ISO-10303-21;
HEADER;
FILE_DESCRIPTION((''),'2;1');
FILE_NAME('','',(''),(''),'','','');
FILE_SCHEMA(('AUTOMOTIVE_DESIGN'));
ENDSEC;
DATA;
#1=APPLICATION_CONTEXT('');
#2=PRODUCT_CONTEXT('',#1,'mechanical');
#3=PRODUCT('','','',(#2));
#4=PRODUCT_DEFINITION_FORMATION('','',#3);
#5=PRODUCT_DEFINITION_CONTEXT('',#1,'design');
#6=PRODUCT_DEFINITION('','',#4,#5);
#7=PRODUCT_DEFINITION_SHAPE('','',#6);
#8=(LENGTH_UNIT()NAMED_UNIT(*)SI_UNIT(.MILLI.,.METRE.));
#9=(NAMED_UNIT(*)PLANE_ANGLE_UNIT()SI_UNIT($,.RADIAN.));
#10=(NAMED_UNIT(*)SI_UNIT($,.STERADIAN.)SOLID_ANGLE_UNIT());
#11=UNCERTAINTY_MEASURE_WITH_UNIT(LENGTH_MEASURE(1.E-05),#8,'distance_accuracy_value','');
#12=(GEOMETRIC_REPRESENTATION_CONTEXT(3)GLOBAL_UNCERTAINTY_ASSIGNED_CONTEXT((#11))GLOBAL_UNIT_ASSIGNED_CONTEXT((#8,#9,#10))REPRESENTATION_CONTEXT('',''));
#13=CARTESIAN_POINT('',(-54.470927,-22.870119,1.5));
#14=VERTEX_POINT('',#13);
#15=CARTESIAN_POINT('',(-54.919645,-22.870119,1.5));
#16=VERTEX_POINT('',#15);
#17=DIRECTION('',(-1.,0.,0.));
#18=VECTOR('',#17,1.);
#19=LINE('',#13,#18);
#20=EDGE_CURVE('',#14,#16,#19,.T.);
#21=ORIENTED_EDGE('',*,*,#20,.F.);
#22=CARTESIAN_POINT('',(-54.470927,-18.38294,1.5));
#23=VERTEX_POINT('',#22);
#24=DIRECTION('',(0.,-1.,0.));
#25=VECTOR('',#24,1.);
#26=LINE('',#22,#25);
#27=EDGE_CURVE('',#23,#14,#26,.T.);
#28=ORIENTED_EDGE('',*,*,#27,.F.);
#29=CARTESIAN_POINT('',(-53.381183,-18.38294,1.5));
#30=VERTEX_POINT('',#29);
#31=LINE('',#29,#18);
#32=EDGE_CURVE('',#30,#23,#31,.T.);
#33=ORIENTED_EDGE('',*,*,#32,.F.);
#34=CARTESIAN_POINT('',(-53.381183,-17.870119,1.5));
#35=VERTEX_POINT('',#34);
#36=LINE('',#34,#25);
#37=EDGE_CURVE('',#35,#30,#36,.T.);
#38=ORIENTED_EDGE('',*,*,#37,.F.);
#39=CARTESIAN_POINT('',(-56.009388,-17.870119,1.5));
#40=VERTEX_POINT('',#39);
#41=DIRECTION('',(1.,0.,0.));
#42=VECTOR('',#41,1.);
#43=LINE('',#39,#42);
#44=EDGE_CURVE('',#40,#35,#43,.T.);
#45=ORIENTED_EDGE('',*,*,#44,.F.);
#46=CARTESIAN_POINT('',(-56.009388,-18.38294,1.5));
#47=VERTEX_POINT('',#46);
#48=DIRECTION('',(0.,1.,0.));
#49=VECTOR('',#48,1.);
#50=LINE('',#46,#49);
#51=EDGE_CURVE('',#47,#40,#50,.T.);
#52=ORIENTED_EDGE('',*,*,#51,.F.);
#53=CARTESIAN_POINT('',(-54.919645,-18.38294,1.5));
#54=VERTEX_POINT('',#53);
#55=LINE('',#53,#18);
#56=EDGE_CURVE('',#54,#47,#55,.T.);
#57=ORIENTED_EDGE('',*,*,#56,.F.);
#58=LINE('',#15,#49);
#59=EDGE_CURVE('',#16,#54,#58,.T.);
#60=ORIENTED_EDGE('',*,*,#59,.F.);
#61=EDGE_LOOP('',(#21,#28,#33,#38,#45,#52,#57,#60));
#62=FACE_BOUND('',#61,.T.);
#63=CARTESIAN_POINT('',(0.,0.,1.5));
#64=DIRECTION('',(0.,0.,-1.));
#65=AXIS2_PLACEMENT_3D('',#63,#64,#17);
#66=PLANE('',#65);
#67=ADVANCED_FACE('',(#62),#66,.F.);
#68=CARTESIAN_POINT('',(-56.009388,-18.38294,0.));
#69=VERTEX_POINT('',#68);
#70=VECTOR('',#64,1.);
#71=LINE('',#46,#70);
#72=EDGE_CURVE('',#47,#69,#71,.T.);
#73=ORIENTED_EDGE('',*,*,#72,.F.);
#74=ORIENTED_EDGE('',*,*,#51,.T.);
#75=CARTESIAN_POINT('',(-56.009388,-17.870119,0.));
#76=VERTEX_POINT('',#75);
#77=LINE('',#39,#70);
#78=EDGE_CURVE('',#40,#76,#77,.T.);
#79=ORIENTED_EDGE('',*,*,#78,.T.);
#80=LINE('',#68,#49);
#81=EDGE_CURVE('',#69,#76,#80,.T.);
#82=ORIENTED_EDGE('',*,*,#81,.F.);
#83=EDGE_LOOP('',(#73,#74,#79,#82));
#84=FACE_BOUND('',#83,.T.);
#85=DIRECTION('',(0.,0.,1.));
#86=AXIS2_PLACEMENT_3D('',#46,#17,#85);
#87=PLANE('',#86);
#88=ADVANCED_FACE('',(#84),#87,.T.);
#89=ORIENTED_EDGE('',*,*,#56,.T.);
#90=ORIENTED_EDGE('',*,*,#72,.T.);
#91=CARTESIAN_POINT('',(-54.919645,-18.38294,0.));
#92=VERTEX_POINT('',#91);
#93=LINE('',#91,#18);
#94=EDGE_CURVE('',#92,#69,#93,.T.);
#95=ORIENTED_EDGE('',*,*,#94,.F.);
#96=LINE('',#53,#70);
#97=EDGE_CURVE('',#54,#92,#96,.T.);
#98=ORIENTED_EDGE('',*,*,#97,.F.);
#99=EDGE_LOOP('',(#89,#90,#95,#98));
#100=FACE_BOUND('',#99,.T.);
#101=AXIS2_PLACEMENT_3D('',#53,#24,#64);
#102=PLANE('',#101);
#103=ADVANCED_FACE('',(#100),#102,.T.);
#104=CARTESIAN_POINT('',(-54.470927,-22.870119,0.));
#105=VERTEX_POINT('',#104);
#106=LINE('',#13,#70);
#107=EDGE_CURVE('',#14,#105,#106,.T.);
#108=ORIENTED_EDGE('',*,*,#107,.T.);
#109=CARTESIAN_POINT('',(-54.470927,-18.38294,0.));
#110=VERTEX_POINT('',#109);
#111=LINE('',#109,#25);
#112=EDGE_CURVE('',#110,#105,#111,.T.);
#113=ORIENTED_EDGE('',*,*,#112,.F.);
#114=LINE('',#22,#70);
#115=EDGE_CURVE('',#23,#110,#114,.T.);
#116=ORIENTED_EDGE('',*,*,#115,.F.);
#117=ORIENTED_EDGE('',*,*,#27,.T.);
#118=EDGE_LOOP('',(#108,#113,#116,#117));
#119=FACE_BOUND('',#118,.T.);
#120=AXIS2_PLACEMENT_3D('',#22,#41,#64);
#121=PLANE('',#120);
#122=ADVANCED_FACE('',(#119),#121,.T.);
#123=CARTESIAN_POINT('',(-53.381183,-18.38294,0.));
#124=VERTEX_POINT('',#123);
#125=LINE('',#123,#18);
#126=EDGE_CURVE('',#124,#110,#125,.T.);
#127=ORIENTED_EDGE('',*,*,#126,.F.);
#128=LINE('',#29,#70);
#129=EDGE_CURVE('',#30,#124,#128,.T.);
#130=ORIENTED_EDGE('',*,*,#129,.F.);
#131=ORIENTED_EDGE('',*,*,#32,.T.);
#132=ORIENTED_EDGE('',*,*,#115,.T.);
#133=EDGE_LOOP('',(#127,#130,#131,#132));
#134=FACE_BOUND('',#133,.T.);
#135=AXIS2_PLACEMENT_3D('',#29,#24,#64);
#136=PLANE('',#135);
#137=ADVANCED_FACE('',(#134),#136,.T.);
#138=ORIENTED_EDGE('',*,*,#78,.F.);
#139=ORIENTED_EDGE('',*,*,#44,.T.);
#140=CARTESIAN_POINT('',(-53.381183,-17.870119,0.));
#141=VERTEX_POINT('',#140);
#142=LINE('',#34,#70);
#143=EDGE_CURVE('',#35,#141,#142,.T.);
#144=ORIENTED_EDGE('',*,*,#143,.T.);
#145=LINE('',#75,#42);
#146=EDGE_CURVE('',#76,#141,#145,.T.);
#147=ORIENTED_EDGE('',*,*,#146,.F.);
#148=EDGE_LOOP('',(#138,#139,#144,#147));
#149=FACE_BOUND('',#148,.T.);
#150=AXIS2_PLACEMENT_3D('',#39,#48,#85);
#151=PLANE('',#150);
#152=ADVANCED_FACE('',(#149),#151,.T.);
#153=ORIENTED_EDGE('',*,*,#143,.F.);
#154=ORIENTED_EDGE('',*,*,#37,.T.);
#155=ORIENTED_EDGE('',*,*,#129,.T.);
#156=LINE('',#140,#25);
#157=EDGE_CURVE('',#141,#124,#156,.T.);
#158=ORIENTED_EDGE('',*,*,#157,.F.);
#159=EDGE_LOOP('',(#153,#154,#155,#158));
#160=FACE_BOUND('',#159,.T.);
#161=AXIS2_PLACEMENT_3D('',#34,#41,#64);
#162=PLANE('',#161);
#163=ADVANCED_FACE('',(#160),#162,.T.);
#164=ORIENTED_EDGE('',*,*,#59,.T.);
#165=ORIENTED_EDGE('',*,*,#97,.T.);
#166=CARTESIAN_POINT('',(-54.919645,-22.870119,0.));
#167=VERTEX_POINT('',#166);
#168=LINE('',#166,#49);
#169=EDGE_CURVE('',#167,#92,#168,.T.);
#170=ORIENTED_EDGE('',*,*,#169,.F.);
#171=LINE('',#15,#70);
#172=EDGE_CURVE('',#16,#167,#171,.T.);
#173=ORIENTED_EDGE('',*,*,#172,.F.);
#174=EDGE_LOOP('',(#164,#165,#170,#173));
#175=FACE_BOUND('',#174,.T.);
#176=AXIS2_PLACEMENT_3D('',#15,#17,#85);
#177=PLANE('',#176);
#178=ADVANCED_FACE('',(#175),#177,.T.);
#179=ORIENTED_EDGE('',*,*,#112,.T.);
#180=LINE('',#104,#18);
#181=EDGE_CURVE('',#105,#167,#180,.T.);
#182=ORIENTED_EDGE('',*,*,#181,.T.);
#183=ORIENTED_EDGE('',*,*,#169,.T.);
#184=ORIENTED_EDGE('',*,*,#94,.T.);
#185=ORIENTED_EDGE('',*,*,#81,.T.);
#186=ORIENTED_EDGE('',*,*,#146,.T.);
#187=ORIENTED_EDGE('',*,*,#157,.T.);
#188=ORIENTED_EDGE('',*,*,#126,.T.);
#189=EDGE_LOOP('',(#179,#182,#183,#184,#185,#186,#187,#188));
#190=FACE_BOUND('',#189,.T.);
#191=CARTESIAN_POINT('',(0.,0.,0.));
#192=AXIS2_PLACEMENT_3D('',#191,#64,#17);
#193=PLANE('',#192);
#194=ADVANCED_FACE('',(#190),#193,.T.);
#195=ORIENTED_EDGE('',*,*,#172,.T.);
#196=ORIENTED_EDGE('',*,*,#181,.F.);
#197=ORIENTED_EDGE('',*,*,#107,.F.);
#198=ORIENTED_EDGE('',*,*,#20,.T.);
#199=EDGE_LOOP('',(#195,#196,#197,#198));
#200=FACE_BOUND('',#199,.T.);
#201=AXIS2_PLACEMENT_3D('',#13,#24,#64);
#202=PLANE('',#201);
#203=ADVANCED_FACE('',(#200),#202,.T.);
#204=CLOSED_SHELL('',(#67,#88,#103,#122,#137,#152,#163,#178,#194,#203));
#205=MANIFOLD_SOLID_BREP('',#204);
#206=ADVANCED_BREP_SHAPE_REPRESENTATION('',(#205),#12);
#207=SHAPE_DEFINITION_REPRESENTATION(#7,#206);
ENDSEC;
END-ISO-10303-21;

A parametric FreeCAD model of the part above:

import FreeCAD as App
import Part
import Sketcher
from FreeCAD import Vector
Q = App.Units.Quantity


def add_polygon(sketch, points):
    """Adds a closed chain of lines whose ends are joined by coincident constraints."""
    first, n = sketch.GeometryCount, len(points)
    for a, b in zip(points, points[1:] + points[:1]):
        sketch.addGeometry(Part.LineSegment(App.Vector(*a, 0), App.Vector(*b, 0)), False)
    for i in range(n):
        sketch.addConstraint(Sketcher.Constraint("Coincident", first + i, 2, first + (i + 1) % n, 1))

doc = App.newDocument("Part")
body = doc.addObject("PartDesign::Body", "Body")

sketch1 = doc.addObject("Sketcher::SketchObject", "Sketch")
body.addObject(sketch1)
sketch1.AttachmentSupport = (doc.XY_Plane, [""])
sketch1.MapMode = "FlatFace"
add_polygon(sketch1, [(-56.01, -17.87), (-56.01, -18.38), (-54.92, -18.38), (-54.92, -22.87), (-54.47, -22.87), (-54.47, -18.38), (-53.38, -18.38), (-53.38, -17.87)])
sketch1.addConstraint(Sketcher.Constraint("Vertical", 0))
sketch1.addConstraint(Sketcher.Constraint("Horizontal", 1))
sketch1.addConstraint(Sketcher.Constraint("Vertical", 2))
sketch1.addConstraint(Sketcher.Constraint("Horizontal", 3))
sketch1.addConstraint(Sketcher.Constraint("Vertical", 4))
sketch1.addConstraint(Sketcher.Constraint("Horizontal", 5))
sketch1.addConstraint(Sketcher.Constraint("Vertical", 6))
sketch1.addConstraint(Sketcher.Constraint("Horizontal", 7))
sketch1.addConstraint(Sketcher.Constraint("Horizontal", 1, 2, 4, 2))
sketch1.addConstraint(Sketcher.Constraint("Equal", 1, 5))
sketch1.addConstraint(Sketcher.Constraint("DistanceY", 3, 2, 6, 2, Q("5 mm")))
sketch1.addConstraint(Sketcher.Constraint("DistanceY", 0, 2, 0, 1, Q("0.512821 mm")))
sketch1.addConstraint(Sketcher.Constraint("DistanceX", 1, 1, 1, 2, Q("1.089744 mm")))
sketch1.addConstraint(Sketcher.Constraint("DistanceX", 3, 1, 3, 2, Q("0.448718 mm")))
sketch1.addConstraint(Sketcher.Constraint("DistanceX", 0, 2, -1, 1, Q("56.009388 mm")))
sketch1.addConstraint(Sketcher.Constraint("DistanceY", 0, 2, -1, 1, Q("18.38294 mm")))
pad1 = doc.addObject("PartDesign::Pad", "Pad")
body.addObject(pad1)
pad1.Profile = sketch1
pad1.Length = 1.5

doc.recompute()
